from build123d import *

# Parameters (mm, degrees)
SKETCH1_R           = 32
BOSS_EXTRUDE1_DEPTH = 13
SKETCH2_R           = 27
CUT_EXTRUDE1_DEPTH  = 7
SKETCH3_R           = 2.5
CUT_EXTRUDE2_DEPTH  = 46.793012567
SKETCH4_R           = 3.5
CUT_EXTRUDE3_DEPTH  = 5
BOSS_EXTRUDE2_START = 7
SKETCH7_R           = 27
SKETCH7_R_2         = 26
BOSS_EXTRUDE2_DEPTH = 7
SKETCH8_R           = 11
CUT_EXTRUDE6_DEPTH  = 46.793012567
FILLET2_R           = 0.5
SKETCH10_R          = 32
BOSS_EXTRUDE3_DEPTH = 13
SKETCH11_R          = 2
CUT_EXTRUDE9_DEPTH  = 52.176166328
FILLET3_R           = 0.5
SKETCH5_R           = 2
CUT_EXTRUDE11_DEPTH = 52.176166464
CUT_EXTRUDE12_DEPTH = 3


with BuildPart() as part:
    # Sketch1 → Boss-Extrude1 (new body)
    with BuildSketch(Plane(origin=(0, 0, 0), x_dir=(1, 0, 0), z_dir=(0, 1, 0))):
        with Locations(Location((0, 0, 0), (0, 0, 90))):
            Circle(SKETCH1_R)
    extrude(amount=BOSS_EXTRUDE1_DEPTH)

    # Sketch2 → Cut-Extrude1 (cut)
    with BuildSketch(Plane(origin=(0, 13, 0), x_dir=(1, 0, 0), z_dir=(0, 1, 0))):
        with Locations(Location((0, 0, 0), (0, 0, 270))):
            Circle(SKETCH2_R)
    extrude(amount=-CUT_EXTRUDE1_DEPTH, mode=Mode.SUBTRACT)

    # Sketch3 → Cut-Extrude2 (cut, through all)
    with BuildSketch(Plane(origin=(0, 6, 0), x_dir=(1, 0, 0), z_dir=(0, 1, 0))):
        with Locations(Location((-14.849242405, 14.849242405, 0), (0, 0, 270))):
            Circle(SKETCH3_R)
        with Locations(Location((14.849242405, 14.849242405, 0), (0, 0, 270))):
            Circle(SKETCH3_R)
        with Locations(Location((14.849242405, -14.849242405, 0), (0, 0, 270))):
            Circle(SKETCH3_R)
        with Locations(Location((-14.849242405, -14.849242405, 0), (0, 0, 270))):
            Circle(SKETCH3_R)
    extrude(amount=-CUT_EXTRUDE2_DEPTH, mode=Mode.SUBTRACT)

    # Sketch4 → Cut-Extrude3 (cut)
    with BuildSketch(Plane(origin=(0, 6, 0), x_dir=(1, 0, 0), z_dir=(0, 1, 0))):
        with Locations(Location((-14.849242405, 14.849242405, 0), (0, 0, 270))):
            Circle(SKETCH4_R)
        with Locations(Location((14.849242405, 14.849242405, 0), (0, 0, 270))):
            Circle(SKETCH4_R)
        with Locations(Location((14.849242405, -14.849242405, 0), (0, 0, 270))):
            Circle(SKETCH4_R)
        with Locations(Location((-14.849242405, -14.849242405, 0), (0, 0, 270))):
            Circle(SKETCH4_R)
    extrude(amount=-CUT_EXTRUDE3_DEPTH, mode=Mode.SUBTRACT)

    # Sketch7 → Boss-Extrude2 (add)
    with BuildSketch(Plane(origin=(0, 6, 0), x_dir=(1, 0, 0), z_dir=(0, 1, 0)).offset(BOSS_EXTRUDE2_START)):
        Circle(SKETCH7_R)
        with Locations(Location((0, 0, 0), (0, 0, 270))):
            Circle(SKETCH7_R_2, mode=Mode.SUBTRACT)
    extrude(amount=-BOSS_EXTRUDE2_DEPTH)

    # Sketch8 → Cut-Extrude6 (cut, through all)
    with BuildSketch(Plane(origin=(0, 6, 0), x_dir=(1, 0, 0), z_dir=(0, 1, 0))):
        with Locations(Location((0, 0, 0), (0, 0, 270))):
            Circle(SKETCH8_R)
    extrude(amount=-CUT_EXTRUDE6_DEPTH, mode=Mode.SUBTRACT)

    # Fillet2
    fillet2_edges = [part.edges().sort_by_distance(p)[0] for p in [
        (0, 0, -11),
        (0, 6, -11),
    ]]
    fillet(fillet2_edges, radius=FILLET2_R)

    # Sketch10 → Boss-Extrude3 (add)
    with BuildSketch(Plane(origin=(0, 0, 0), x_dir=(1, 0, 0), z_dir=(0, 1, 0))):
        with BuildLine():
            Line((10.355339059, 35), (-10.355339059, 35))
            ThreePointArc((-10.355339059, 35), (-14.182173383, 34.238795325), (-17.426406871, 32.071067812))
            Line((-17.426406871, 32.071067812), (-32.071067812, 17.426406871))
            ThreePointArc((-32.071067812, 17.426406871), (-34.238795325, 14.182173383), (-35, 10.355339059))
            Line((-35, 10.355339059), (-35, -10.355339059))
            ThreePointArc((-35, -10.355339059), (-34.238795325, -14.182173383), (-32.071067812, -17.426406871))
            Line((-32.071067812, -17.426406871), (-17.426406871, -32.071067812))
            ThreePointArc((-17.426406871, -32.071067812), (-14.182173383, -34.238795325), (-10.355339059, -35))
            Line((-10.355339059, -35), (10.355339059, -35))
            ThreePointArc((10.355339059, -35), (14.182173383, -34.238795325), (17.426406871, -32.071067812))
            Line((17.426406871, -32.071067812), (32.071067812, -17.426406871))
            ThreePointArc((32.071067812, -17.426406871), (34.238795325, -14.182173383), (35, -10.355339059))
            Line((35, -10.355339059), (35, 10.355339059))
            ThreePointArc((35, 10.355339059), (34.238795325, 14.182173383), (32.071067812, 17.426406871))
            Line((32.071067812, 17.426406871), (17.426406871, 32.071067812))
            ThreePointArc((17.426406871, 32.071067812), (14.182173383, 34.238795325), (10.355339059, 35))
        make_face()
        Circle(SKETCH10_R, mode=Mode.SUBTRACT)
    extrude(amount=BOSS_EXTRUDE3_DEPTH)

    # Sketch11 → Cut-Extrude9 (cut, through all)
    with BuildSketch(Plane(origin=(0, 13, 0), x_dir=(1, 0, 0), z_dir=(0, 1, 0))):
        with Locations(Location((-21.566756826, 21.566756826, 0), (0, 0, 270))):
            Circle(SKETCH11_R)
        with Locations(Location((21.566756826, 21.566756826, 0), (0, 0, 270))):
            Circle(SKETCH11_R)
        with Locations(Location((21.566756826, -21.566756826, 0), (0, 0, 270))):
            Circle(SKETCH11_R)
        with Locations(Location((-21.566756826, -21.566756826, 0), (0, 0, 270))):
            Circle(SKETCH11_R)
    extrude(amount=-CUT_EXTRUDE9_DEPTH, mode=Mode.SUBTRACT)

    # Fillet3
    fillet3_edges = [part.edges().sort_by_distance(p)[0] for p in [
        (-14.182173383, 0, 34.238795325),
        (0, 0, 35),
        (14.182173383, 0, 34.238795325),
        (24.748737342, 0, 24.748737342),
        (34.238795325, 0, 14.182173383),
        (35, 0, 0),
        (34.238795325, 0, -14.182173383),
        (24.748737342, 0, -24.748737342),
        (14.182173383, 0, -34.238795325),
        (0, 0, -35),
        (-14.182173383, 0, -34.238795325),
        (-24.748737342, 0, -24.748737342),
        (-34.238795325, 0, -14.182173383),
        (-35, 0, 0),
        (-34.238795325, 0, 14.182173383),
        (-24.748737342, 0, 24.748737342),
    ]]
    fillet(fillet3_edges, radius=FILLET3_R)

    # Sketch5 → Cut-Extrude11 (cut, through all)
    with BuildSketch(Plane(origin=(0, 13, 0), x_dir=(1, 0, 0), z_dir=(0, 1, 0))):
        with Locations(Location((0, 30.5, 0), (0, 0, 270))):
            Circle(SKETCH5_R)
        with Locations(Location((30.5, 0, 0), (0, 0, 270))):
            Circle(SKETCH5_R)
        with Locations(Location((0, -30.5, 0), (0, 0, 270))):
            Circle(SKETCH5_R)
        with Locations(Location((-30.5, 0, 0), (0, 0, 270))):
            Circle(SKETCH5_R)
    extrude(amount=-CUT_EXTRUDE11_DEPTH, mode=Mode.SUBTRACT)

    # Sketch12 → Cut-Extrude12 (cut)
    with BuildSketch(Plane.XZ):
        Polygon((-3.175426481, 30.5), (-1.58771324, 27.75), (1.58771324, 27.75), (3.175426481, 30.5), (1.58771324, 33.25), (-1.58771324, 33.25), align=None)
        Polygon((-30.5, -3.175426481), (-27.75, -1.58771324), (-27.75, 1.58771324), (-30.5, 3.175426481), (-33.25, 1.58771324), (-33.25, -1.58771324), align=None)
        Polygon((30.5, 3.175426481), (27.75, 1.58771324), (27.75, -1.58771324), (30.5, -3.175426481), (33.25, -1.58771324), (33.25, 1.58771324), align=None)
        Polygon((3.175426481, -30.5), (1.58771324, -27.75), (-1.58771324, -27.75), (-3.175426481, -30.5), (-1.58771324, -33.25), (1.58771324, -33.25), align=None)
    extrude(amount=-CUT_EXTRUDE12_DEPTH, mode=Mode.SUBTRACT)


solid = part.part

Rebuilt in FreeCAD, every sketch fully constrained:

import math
import FreeCAD as App
import Part
import Sketcher

V = App.Vector
Q = App.Units.Quantity


def edges_at(feature, points):
    """Names of the edges that pass closest to the given points."""
    edges = feature.Shape.Edges
    near = lambda p: min(range(len(edges)), key=lambda i: edges[i].distToShape(Part.Vertex(*p))[0])
    return sorted({f"Edge{near(p) + 1}" for p in points})


def add_polygon(sketch, points):
    """Adds a closed chain of lines whose ends are joined by coincident constraints."""
    first, n = sketch.GeometryCount, len(points)
    for a, b in zip(points, points[1:] + points[:1]):
        sketch.addGeometry(Part.LineSegment(App.Vector(*a, 0), App.Vector(*b, 0)), False)
    for i in range(n):
        sketch.addConstraint(Sketcher.Constraint("Coincident", first + i, 2, first + (i + 1) % n, 1))

doc = App.newDocument("Part")
body = doc.addObject("PartDesign::Body", "Body")

# Sketch on XZ plane
sketch1 = doc.addObject("Sketcher::SketchObject", "Sketch")
body.addObject(sketch1)
sketch1.AttachmentSupport = (doc.XZ_Plane, [""])
sketch1.MapMode = "FlatFace"
sketch1.addGeometry(Part.Circle(V(0, 0, 0), V(0, 0, 1), 32), False)
sketch1.addConstraint([
    Sketcher.Constraint("Coincident", 0, 3, -1, 1),
    Sketcher.Constraint("Diameter", 0, Q("64 mm")),
])
pad1 = doc.addObject("PartDesign::Pad", "Pad")
body.addObject(pad1)
pad1.Profile = sketch1
pad1.Length = 13
pad1.Reversed = True

# Sketch on XZ plane
sketch2 = doc.addObject("Sketcher::SketchObject", "Sketch001")
body.addObject(sketch2)
sketch2.AttachmentSupport = (doc.XZ_Plane, [""])
sketch2.MapMode = "FlatFace"
sketch2.AttachmentOffset = App.Placement(V(0, 0, -13), App.Rotation())
sketch2.addGeometry(Part.Circle(V(0, 0, 0), V(0, 0, 1), 27), False)
sketch2.addConstraint([
    Sketcher.Constraint("Coincident", 0, 3, -1, 1),
    Sketcher.Constraint("Diameter", 0, Q("54 mm")),
])
pocket1 = doc.addObject("PartDesign::Pocket", "Pocket")
body.addObject(pocket1)
pocket1.Profile = sketch2
pocket1.Length = 7
pocket1.Reversed = True

# Sketch on XZ plane
sketch3 = doc.addObject("Sketcher::SketchObject", "Sketch002")
body.addObject(sketch3)
sketch3.AttachmentSupport = (doc.XZ_Plane, [""])
sketch3.MapMode = "FlatFace"
sketch3.AttachmentOffset = App.Placement(V(0, 0, -6), App.Rotation())
sketch3.addGeometry([
    Part.Circle(V(-14.8, -14.8, 0), V(0, 0, 1), 2.5),
    Part.Circle(V(14.8, -14.8, 0), V(0, 0, 1), 2.5),
    Part.Circle(V(14.8, 14.8, 0), V(0, 0, 1), 2.5),
    Part.Circle(V(-14.8, 14.8, 0), V(0, 0, 1), 2.5),
], False)
sketch3.addConstraint([
    Sketcher.Constraint("Equal", 0, 1),
    Sketcher.Constraint("Equal", 1, 2),
    Sketcher.Constraint("Equal", 2, 3),
    Sketcher.Constraint("Symmetric", 0, 3, 2, 3, -1, 1),
    Sketcher.Constraint("Symmetric", 1, 3, 3, 3, -1, 1),
    Sketcher.Constraint("Symmetric", 0, 3, 1, 3, -2),
    Sketcher.Constraint("Diameter", 0, Q("5 mm")),
    Sketcher.Constraint("DistanceX", 0, 3, -1, 1, Q("14.849242 mm")),
    Sketcher.Constraint("DistanceY", 0, 3, -1, 1, Q("14.849242 mm")),
])
pocket2 = doc.addObject("PartDesign::Pocket", "Pocket001")
body.addObject(pocket2)
pocket2.Profile = sketch3
pocket2.Type = "ThroughAll"
pocket2.Reversed = True

# Sketch on XZ plane
sketch4 = doc.addObject("Sketcher::SketchObject", "Sketch003")
body.addObject(sketch4)
sketch4.AttachmentSupport = (doc.XZ_Plane, [""])
sketch4.MapMode = "FlatFace"
sketch4.AttachmentOffset = App.Placement(V(0, 0, -6), App.Rotation())
sketch4.addGeometry([
    Part.Circle(V(-14.8, -14.8, 0), V(0, 0, 1), 3.5),
    Part.Circle(V(14.8, -14.8, 0), V(0, 0, 1), 3.5),
    Part.Circle(V(14.8, 14.8, 0), V(0, 0, 1), 3.5),
    Part.Circle(V(-14.8, 14.8, 0), V(0, 0, 1), 3.5),
], False)
sketch4.addConstraint([
    Sketcher.Constraint("Equal", 0, 1),
    Sketcher.Constraint("Equal", 1, 2),
    Sketcher.Constraint("Equal", 2, 3),
    Sketcher.Constraint("Symmetric", 0, 3, 2, 3, -1, 1),
    Sketcher.Constraint("Symmetric", 1, 3, 3, 3, -1, 1),
    Sketcher.Constraint("Symmetric", 0, 3, 1, 3, -2),
    Sketcher.Constraint("Diameter", 0, Q("7 mm")),
    Sketcher.Constraint("DistanceX", 0, 3, -1, 1, Q("14.849242 mm")),
    Sketcher.Constraint("DistanceY", 0, 3, -1, 1, Q("14.849242 mm")),
])
pocket3 = doc.addObject("PartDesign::Pocket", "Pocket002")
body.addObject(pocket3)
pocket3.Profile = sketch4
pocket3.Length = 5
pocket3.Reversed = True

# Sketch on XZ plane
sketch5 = doc.addObject("Sketcher::SketchObject", "Sketch004")
body.addObject(sketch5)
sketch5.AttachmentSupport = (doc.XZ_Plane, [""])
sketch5.MapMode = "FlatFace"
sketch5.AttachmentOffset = App.Placement(V(0, 0, -13), App.Rotation())
sketch5.addGeometry([
    Part.Circle(V(0, 0, 0), V(0, 0, 1), 27),
    Part.Circle(V(0, 0, 0), V(0, 0, 1), 26),
], False)
sketch5.addConstraint([
    Sketcher.Constraint("Coincident", 0, 3, -1, 1),
    Sketcher.Constraint("Coincident", 1, 3, -1, 1),
    Sketcher.Constraint("Diameter", 0, Q("54 mm")),
    Sketcher.Constraint("Diameter", 1, Q("52 mm")),
])
pad2 = doc.addObject("PartDesign::Pad", "Pad001")
body.addObject(pad2)
pad2.Profile = sketch5
pad2.Length = 7

# Sketch on XZ plane
sketch6 = doc.addObject("Sketcher::SketchObject", "Sketch005")
body.addObject(sketch6)
sketch6.AttachmentSupport = (doc.XZ_Plane, [""])
sketch6.MapMode = "FlatFace"
sketch6.AttachmentOffset = App.Placement(V(0, 0, -6), App.Rotation())
sketch6.addGeometry(Part.Circle(V(0, 0, 0), V(0, 0, 1), 11), False)
sketch6.addConstraint([
    Sketcher.Constraint("Coincident", 0, 3, -1, 1),
    Sketcher.Constraint("Diameter", 0, Q("22 mm")),
])
pocket4 = doc.addObject("PartDesign::Pocket", "Pocket003")
body.addObject(pocket4)
pocket4.Profile = sketch6
pocket4.Type = "ThroughAll"
pocket4.Reversed = True
doc.recompute()

fillet = doc.addObject("PartDesign::Fillet", "Fillet")
body.addObject(fillet)
fillet.Base = (pocket4, edges_at(pocket4, [(0, 0, -11), (0, 6, -11)]))
fillet.Radius = 0.5

# Sketch on XZ plane
sketch7 = doc.addObject("Sketcher::SketchObject", "Sketch006")
body.addObject(sketch7)
sketch7.AttachmentSupport = (doc.XZ_Plane, [""])
sketch7.MapMode = "FlatFace"
sketch7.addGeometry([
    Part.LineSegment(V(10, -35, 0), V(-10, -35, 0)),  # 0
    Part.ArcOfCircle(Part.Circle(V(-10, -25, 0), V(0, 0, 1), 10), math.radians(-135), math.radians(-90)),  # 1
    Part.LineSegment(V(-17, -32, 0), V(-32, -17, 0)),  # 2
    Part.ArcOfCircle(Part.Circle(V(-25, -10, 0), V(0, 0, 1), 10), math.radians(180), math.radians(225)),  # 3
    Part.LineSegment(V(-35, -10, 0), V(-35, 10, 0)),  # 4
    Part.ArcOfCircle(Part.Circle(V(-25, 10, 0), V(0, 0, 1), 10), math.radians(135), math.radians(180)),  # 5
    Part.LineSegment(V(-32, 17, 0), V(-17, 32, 0)),  # 6
    Part.ArcOfCircle(Part.Circle(V(-10, 25, 0), V(0, 0, 1), 10), math.radians(90), math.radians(135)),  # 7
    Part.LineSegment(V(-10, 35, 0), V(10, 35, 0)),  # 8
    Part.ArcOfCircle(Part.Circle(V(10, 25, 0), V(0, 0, 1), 10), math.radians(45), math.radians(90)),  # 9
    Part.LineSegment(V(17, 32, 0), V(32, 17, 0)),  # 10
    Part.ArcOfCircle(Part.Circle(V(25, 10, 0), V(0, 0, 1), 10), math.radians(0), math.radians(45)),  # 11
    Part.LineSegment(V(35, 10, 0), V(35, -10, 0)),  # 12
    Part.ArcOfCircle(Part.Circle(V(25, -10, 0), V(0, 0, 1), 10), math.radians(-45), math.radians(0)),  # 13
    Part.LineSegment(V(32, -17, 0), V(17, -32, 0)),  # 14
    Part.ArcOfCircle(Part.Circle(V(10, -25, 0), V(0, 0, 1), 10), math.radians(-90), math.radians(-45)),  # 15
    Part.Circle(V(0, 0, 0), V(0, 0, 1), 32),  # 16
], False)
sketch7.addConstraint([
    Sketcher.Constraint("Tangent", 0, 2, 1, 2),
    Sketcher.Constraint("Tangent", 1, 1, 2, 1),
    Sketcher.Constraint("Tangent", 2, 2, 3, 2),
    Sketcher.Constraint("Tangent", 3, 1, 4, 1),
    Sketcher.Constraint("Tangent", 4, 2, 5, 2),
    Sketcher.Constraint("Tangent", 5, 1, 6, 1),
    Sketcher.Constraint("Tangent", 6, 2, 7, 2),
    Sketcher.Constraint("Tangent", 7, 1, 8, 1),
    Sketcher.Constraint("Tangent", 8, 2, 9, 2),
    Sketcher.Constraint("Tangent", 9, 1, 10, 1),
    Sketcher.Constraint("Tangent", 10, 2, 11, 2),
    Sketcher.Constraint("Tangent", 11, 1, 12, 1),
    Sketcher.Constraint("Tangent", 12, 2, 13, 2),
    Sketcher.Constraint("Tangent", 13, 1, 14, 1),
    Sketcher.Constraint("Tangent", 14, 2, 15, 2),
    Sketcher.Constraint("Tangent", 15, 1, 0, 1),
    Sketcher.Constraint("Horizontal", 0),
    Sketcher.Constraint("Vertical", 4),
    Sketcher.Constraint("Horizontal", 8),
    Sketcher.Constraint("Vertical", 12),
    Sketcher.Constraint("Coincident", 16, 3, -1, 1),
    Sketcher.Constraint("Equal", 1, 3),
    Sketcher.Constraint("Equal", 3, 5),
    Sketcher.Constraint("Equal", 5, 7),
    Sketcher.Constraint("Equal", 7, 9),
    Sketcher.Constraint("Equal", 9, 11),
    Sketcher.Constraint("Equal", 11, 13),
    Sketcher.Constraint("Equal", 13, 15),
    Sketcher.Constraint("Symmetric", 1, 3, 9, 3, -1, 1),
    Sketcher.Constraint("Symmetric", 3, 3, 11, 3, -1, 1),
    Sketcher.Constraint("Symmetric", 5, 1, 13, 1, -1, 1),
    Sketcher.Constraint("Symmetric", 6, 2, 9, 1, -2),
    Sketcher.Constraint("Perpendicular", 2, 6),
    Sketcher.Constraint("Equal", 8, 4),
    Sketcher.Constraint("Diameter", 16, Q("64 mm")),
    Sketcher.Constraint("Radius", 1, Q("10 mm")),
    Sketcher.Constraint("DistanceY", 1, 3, -1, 1, Q("25 mm")),
    Sketcher.Constraint("DistanceX", 0, 2, 0, 1, Q("20.710678 mm")),
])
pad3 = doc.addObject("PartDesign::Pad", "Pad002")
body.addObject(pad3)
pad3.Profile = sketch7
pad3.Length = 13
pad3.Reversed = True

# Sketch on XZ plane
sketch8 = doc.addObject("Sketcher::SketchObject", "Sketch007")
body.addObject(sketch8)
sketch8.AttachmentSupport = (doc.XZ_Plane, [""])
sketch8.MapMode = "FlatFace"
sketch8.AttachmentOffset = App.Placement(V(0, 0, -13), App.Rotation())
sketch8.addGeometry([
    Part.Circle(V(-21.6, -21.6, 0), V(0, 0, 1), 2),
    Part.Circle(V(21.6, -21.6, 0), V(0, 0, 1), 2),
    Part.Circle(V(21.6, 21.6, 0), V(0, 0, 1), 2),
    Part.Circle(V(-21.6, 21.6, 0), V(0, 0, 1), 2),
], False)
sketch8.addConstraint([
    Sketcher.Constraint("Equal", 0, 1),
    Sketcher.Constraint("Equal", 1, 2),
    Sketcher.Constraint("Equal", 2, 3),
    Sketcher.Constraint("Symmetric", 0, 3, 2, 3, -1, 1),
    Sketcher.Constraint("Symmetric", 1, 3, 3, 3, -1, 1),
    Sketcher.Constraint("Symmetric", 0, 3, 1, 3, -2),
    Sketcher.Constraint("Diameter", 0, Q("4 mm")),
    Sketcher.Constraint("DistanceX", 0, 3, -1, 1, Q("21.566757 mm")),
    Sketcher.Constraint("DistanceY", 0, 3, -1, 1, Q("21.566757 mm")),
])
pocket5 = doc.addObject("PartDesign::Pocket", "Pocket004")
body.addObject(pocket5)
pocket5.Profile = sketch8
pocket5.Type = "ThroughAll"
pocket5.Reversed = True
doc.recompute()

fillet2 = doc.addObject("PartDesign::Fillet", "Fillet001")
body.addObject(fillet2)
fillet2.Base = (pocket5, edges_at(pocket5, [
    (-14.182, 0, 34.239),
    (0, 0, 35),
    (14.182, 0, 34.239),
    (24.749, 0, 24.749),
    (34.239, 0, 14.182),
    (35, 0, 0),
    (34.239, 0, -14.182),
    (24.749, 0, -24.749),
    (14.182, 0, -34.239),
    (0, 0, -35),
    (-14.182, 0, -34.239),
    (-24.749, 0, -24.749),
    (-34.239, 0, -14.182),
    (-35, 0, 0),
    (-34.239, 0, 14.182),
    (-24.749, 0, 24.749),
]))
fillet2.Radius = 0.5

# Sketch on XZ plane
sketch9 = doc.addObject("Sketcher::SketchObject", "Sketch008")
body.addObject(sketch9)
sketch9.AttachmentSupport = (doc.XZ_Plane, [""])
sketch9.MapMode = "FlatFace"
sketch9.AttachmentOffset = App.Placement(V(0, 0, -13), App.Rotation())
sketch9.addGeometry([
    Part.Circle(V(0, -30.5, 0), V(0, 0, 1), 2),
    Part.Circle(V(30.5, 0, 0), V(0, 0, 1), 2),
    Part.Circle(V(0, 30.5, 0), V(0, 0, 1), 2),
    Part.Circle(V(-30.5, 0, 0), V(0, 0, 1), 2),
], False)
sketch9.addConstraint([
    Sketcher.Constraint("Equal", 0, 1),
    Sketcher.Constraint("Equal", 1, 2),
    Sketcher.Constraint("Equal", 2, 3),
    Sketcher.Constraint("Symmetric", 0, 3, 2, 3, -1, 1),
    Sketcher.Constraint("Symmetric", 1, 3, 3, 3, -1, 1),
    Sketcher.Constraint("PointOnObject", 0, 3, -2),
    Sketcher.Constraint("PointOnObject", 1, 3, -1),
    Sketcher.Constraint("Diameter", 0, Q("4 mm")),
    Sketcher.Constraint("DistanceY", 0, 3, 2, 3, Q("61 mm")),
    Sketcher.Constraint("DistanceX", 3, 3, 1, 3, Q("61 mm")),
])
pocket6 = doc.addObject("PartDesign::Pocket", "Pocket005")
body.addObject(pocket6)
pocket6.Profile = sketch9
pocket6.Type = "ThroughAll"
pocket6.Reversed = True

# Sketch on XZ plane
sketch10 = doc.addObject("Sketcher::SketchObject", "Sketch009")
body.addObject(sketch10)
sketch10.AttachmentSupport = (doc.XZ_Plane, [""])
sketch10.MapMode = "FlatFace"
add_polygon(sketch10, [(-3.2, 30.5), (-1.6, 27.8), (1.6, 27.8), (3.2, 30.5), (1.6, 33.2), (-1.6, 33.2)])  # lines 0-5
add_polygon(sketch10, [(-30.5, -3.2), (-27.8, -1.6), (-27.8, 1.6), (-30.5, 3.2), (-33.2, 1.6), (-33.2, -1.6)])  # lines 6-11
add_polygon(sketch10, [(30.5, 3.2), (27.8, 1.6), (27.8, -1.6), (30.5, -3.2), (33.2, -1.6), (33.2, 1.6)])  # lines 12-17
add_polygon(sketch10, [(3.2, -30.5), (1.6, -27.8), (-1.6, -27.8), (-3.2, -30.5), (-1.6, -33.2), (1.6, -33.2)])  # lines 18-23
sketch10.addConstraint([
    Sketcher.Constraint("Horizontal", 1),
    Sketcher.Constraint("Horizontal", 4),
    Sketcher.Constraint("Vertical", 7),
    Sketcher.Constraint("Vertical", 10),
    Sketcher.Constraint("Vertical", 13),
    Sketcher.Constraint("Vertical", 16),
    Sketcher.Constraint("Horizontal", 19),
    Sketcher.Constraint("Horizontal", 22),
    Sketcher.Constraint("Symmetric", 6, 2, 12, 2, -1, 1),
    Sketcher.Constraint("Symmetric", 8, 2, 14, 2, -1, 1),
    Sketcher.Constraint("Symmetric", 9, 2, 15, 2, -1, 1),
    Sketcher.Constraint("Symmetric", 11, 2, 17, 2, -1, 1),
    Sketcher.Constraint("Symmetric", 0, 2, 18, 2, -1, 1),
    Sketcher.Constraint("Symmetric", 2, 2, 20, 2, -1, 1),
    Sketcher.Constraint("Symmetric", 3, 2, 21, 2, -1, 1),
    Sketcher.Constraint("Symmetric", 5, 2, 23, 2, -1, 1),
    Sketcher.Constraint("Symmetric", 2, 2, 5, 2, -2),
    Sketcher.Constraint("Symmetric", 11, 2, 14, 2, -2),
    Sketcher.Constraint("Parallel", 0, 3),
    Sketcher.Constraint("Parallel", 2, 5),
    Sketcher.Constraint("Perpendicular", 3, 6),
    Sketcher.Constraint("Perpendicular", 5, 8),
    Sketcher.Constraint("Parallel", 6, 9),
    Sketcher.Constraint("Parallel", 8, 11),
    Sketcher.Constraint("Parallel", 11, 14),
    Sketcher.Constraint("Parallel", 14, 17),
    Sketcher.Constraint("Perpendicular", 17, 20),
    Sketcher.Constraint("Parallel", 20, 23),
    Sketcher.Constraint("Horizontal", 7, 2, 9, 2),
    Sketcher.Constraint("Horizontal", 6, 2, 10, 2),
    Sketcher.Constraint("Vertical", 1, 2, 3, 2),
    Sketcher.Constraint("Equal", 22, 7),
    Sketcher.Constraint("Equal", 5, 6),
    Sketcher.Constraint("Angle", 0, Q("-60 deg")),
    Sketcher.Constraint("DistanceY", -1, 1, 2, 2, Q("30.5 mm")),
    Sketcher.Constraint("DistanceX", 8, 2, -1, 1, Q("30.5 mm")),
    Sketcher.Constraint("DistanceY", 1, 2, 3, 2, Q("5.5 mm")),
    Sketcher.Constraint("DistanceX", 1, 1, 1, 2, Q("3.175426 mm")),
])
pocket7 = doc.addObject("PartDesign::Pocket", "Pocket006")
body.addObject(pocket7)
pocket7.Profile = sketch10
pocket7.Length = 3

doc.recompute()
